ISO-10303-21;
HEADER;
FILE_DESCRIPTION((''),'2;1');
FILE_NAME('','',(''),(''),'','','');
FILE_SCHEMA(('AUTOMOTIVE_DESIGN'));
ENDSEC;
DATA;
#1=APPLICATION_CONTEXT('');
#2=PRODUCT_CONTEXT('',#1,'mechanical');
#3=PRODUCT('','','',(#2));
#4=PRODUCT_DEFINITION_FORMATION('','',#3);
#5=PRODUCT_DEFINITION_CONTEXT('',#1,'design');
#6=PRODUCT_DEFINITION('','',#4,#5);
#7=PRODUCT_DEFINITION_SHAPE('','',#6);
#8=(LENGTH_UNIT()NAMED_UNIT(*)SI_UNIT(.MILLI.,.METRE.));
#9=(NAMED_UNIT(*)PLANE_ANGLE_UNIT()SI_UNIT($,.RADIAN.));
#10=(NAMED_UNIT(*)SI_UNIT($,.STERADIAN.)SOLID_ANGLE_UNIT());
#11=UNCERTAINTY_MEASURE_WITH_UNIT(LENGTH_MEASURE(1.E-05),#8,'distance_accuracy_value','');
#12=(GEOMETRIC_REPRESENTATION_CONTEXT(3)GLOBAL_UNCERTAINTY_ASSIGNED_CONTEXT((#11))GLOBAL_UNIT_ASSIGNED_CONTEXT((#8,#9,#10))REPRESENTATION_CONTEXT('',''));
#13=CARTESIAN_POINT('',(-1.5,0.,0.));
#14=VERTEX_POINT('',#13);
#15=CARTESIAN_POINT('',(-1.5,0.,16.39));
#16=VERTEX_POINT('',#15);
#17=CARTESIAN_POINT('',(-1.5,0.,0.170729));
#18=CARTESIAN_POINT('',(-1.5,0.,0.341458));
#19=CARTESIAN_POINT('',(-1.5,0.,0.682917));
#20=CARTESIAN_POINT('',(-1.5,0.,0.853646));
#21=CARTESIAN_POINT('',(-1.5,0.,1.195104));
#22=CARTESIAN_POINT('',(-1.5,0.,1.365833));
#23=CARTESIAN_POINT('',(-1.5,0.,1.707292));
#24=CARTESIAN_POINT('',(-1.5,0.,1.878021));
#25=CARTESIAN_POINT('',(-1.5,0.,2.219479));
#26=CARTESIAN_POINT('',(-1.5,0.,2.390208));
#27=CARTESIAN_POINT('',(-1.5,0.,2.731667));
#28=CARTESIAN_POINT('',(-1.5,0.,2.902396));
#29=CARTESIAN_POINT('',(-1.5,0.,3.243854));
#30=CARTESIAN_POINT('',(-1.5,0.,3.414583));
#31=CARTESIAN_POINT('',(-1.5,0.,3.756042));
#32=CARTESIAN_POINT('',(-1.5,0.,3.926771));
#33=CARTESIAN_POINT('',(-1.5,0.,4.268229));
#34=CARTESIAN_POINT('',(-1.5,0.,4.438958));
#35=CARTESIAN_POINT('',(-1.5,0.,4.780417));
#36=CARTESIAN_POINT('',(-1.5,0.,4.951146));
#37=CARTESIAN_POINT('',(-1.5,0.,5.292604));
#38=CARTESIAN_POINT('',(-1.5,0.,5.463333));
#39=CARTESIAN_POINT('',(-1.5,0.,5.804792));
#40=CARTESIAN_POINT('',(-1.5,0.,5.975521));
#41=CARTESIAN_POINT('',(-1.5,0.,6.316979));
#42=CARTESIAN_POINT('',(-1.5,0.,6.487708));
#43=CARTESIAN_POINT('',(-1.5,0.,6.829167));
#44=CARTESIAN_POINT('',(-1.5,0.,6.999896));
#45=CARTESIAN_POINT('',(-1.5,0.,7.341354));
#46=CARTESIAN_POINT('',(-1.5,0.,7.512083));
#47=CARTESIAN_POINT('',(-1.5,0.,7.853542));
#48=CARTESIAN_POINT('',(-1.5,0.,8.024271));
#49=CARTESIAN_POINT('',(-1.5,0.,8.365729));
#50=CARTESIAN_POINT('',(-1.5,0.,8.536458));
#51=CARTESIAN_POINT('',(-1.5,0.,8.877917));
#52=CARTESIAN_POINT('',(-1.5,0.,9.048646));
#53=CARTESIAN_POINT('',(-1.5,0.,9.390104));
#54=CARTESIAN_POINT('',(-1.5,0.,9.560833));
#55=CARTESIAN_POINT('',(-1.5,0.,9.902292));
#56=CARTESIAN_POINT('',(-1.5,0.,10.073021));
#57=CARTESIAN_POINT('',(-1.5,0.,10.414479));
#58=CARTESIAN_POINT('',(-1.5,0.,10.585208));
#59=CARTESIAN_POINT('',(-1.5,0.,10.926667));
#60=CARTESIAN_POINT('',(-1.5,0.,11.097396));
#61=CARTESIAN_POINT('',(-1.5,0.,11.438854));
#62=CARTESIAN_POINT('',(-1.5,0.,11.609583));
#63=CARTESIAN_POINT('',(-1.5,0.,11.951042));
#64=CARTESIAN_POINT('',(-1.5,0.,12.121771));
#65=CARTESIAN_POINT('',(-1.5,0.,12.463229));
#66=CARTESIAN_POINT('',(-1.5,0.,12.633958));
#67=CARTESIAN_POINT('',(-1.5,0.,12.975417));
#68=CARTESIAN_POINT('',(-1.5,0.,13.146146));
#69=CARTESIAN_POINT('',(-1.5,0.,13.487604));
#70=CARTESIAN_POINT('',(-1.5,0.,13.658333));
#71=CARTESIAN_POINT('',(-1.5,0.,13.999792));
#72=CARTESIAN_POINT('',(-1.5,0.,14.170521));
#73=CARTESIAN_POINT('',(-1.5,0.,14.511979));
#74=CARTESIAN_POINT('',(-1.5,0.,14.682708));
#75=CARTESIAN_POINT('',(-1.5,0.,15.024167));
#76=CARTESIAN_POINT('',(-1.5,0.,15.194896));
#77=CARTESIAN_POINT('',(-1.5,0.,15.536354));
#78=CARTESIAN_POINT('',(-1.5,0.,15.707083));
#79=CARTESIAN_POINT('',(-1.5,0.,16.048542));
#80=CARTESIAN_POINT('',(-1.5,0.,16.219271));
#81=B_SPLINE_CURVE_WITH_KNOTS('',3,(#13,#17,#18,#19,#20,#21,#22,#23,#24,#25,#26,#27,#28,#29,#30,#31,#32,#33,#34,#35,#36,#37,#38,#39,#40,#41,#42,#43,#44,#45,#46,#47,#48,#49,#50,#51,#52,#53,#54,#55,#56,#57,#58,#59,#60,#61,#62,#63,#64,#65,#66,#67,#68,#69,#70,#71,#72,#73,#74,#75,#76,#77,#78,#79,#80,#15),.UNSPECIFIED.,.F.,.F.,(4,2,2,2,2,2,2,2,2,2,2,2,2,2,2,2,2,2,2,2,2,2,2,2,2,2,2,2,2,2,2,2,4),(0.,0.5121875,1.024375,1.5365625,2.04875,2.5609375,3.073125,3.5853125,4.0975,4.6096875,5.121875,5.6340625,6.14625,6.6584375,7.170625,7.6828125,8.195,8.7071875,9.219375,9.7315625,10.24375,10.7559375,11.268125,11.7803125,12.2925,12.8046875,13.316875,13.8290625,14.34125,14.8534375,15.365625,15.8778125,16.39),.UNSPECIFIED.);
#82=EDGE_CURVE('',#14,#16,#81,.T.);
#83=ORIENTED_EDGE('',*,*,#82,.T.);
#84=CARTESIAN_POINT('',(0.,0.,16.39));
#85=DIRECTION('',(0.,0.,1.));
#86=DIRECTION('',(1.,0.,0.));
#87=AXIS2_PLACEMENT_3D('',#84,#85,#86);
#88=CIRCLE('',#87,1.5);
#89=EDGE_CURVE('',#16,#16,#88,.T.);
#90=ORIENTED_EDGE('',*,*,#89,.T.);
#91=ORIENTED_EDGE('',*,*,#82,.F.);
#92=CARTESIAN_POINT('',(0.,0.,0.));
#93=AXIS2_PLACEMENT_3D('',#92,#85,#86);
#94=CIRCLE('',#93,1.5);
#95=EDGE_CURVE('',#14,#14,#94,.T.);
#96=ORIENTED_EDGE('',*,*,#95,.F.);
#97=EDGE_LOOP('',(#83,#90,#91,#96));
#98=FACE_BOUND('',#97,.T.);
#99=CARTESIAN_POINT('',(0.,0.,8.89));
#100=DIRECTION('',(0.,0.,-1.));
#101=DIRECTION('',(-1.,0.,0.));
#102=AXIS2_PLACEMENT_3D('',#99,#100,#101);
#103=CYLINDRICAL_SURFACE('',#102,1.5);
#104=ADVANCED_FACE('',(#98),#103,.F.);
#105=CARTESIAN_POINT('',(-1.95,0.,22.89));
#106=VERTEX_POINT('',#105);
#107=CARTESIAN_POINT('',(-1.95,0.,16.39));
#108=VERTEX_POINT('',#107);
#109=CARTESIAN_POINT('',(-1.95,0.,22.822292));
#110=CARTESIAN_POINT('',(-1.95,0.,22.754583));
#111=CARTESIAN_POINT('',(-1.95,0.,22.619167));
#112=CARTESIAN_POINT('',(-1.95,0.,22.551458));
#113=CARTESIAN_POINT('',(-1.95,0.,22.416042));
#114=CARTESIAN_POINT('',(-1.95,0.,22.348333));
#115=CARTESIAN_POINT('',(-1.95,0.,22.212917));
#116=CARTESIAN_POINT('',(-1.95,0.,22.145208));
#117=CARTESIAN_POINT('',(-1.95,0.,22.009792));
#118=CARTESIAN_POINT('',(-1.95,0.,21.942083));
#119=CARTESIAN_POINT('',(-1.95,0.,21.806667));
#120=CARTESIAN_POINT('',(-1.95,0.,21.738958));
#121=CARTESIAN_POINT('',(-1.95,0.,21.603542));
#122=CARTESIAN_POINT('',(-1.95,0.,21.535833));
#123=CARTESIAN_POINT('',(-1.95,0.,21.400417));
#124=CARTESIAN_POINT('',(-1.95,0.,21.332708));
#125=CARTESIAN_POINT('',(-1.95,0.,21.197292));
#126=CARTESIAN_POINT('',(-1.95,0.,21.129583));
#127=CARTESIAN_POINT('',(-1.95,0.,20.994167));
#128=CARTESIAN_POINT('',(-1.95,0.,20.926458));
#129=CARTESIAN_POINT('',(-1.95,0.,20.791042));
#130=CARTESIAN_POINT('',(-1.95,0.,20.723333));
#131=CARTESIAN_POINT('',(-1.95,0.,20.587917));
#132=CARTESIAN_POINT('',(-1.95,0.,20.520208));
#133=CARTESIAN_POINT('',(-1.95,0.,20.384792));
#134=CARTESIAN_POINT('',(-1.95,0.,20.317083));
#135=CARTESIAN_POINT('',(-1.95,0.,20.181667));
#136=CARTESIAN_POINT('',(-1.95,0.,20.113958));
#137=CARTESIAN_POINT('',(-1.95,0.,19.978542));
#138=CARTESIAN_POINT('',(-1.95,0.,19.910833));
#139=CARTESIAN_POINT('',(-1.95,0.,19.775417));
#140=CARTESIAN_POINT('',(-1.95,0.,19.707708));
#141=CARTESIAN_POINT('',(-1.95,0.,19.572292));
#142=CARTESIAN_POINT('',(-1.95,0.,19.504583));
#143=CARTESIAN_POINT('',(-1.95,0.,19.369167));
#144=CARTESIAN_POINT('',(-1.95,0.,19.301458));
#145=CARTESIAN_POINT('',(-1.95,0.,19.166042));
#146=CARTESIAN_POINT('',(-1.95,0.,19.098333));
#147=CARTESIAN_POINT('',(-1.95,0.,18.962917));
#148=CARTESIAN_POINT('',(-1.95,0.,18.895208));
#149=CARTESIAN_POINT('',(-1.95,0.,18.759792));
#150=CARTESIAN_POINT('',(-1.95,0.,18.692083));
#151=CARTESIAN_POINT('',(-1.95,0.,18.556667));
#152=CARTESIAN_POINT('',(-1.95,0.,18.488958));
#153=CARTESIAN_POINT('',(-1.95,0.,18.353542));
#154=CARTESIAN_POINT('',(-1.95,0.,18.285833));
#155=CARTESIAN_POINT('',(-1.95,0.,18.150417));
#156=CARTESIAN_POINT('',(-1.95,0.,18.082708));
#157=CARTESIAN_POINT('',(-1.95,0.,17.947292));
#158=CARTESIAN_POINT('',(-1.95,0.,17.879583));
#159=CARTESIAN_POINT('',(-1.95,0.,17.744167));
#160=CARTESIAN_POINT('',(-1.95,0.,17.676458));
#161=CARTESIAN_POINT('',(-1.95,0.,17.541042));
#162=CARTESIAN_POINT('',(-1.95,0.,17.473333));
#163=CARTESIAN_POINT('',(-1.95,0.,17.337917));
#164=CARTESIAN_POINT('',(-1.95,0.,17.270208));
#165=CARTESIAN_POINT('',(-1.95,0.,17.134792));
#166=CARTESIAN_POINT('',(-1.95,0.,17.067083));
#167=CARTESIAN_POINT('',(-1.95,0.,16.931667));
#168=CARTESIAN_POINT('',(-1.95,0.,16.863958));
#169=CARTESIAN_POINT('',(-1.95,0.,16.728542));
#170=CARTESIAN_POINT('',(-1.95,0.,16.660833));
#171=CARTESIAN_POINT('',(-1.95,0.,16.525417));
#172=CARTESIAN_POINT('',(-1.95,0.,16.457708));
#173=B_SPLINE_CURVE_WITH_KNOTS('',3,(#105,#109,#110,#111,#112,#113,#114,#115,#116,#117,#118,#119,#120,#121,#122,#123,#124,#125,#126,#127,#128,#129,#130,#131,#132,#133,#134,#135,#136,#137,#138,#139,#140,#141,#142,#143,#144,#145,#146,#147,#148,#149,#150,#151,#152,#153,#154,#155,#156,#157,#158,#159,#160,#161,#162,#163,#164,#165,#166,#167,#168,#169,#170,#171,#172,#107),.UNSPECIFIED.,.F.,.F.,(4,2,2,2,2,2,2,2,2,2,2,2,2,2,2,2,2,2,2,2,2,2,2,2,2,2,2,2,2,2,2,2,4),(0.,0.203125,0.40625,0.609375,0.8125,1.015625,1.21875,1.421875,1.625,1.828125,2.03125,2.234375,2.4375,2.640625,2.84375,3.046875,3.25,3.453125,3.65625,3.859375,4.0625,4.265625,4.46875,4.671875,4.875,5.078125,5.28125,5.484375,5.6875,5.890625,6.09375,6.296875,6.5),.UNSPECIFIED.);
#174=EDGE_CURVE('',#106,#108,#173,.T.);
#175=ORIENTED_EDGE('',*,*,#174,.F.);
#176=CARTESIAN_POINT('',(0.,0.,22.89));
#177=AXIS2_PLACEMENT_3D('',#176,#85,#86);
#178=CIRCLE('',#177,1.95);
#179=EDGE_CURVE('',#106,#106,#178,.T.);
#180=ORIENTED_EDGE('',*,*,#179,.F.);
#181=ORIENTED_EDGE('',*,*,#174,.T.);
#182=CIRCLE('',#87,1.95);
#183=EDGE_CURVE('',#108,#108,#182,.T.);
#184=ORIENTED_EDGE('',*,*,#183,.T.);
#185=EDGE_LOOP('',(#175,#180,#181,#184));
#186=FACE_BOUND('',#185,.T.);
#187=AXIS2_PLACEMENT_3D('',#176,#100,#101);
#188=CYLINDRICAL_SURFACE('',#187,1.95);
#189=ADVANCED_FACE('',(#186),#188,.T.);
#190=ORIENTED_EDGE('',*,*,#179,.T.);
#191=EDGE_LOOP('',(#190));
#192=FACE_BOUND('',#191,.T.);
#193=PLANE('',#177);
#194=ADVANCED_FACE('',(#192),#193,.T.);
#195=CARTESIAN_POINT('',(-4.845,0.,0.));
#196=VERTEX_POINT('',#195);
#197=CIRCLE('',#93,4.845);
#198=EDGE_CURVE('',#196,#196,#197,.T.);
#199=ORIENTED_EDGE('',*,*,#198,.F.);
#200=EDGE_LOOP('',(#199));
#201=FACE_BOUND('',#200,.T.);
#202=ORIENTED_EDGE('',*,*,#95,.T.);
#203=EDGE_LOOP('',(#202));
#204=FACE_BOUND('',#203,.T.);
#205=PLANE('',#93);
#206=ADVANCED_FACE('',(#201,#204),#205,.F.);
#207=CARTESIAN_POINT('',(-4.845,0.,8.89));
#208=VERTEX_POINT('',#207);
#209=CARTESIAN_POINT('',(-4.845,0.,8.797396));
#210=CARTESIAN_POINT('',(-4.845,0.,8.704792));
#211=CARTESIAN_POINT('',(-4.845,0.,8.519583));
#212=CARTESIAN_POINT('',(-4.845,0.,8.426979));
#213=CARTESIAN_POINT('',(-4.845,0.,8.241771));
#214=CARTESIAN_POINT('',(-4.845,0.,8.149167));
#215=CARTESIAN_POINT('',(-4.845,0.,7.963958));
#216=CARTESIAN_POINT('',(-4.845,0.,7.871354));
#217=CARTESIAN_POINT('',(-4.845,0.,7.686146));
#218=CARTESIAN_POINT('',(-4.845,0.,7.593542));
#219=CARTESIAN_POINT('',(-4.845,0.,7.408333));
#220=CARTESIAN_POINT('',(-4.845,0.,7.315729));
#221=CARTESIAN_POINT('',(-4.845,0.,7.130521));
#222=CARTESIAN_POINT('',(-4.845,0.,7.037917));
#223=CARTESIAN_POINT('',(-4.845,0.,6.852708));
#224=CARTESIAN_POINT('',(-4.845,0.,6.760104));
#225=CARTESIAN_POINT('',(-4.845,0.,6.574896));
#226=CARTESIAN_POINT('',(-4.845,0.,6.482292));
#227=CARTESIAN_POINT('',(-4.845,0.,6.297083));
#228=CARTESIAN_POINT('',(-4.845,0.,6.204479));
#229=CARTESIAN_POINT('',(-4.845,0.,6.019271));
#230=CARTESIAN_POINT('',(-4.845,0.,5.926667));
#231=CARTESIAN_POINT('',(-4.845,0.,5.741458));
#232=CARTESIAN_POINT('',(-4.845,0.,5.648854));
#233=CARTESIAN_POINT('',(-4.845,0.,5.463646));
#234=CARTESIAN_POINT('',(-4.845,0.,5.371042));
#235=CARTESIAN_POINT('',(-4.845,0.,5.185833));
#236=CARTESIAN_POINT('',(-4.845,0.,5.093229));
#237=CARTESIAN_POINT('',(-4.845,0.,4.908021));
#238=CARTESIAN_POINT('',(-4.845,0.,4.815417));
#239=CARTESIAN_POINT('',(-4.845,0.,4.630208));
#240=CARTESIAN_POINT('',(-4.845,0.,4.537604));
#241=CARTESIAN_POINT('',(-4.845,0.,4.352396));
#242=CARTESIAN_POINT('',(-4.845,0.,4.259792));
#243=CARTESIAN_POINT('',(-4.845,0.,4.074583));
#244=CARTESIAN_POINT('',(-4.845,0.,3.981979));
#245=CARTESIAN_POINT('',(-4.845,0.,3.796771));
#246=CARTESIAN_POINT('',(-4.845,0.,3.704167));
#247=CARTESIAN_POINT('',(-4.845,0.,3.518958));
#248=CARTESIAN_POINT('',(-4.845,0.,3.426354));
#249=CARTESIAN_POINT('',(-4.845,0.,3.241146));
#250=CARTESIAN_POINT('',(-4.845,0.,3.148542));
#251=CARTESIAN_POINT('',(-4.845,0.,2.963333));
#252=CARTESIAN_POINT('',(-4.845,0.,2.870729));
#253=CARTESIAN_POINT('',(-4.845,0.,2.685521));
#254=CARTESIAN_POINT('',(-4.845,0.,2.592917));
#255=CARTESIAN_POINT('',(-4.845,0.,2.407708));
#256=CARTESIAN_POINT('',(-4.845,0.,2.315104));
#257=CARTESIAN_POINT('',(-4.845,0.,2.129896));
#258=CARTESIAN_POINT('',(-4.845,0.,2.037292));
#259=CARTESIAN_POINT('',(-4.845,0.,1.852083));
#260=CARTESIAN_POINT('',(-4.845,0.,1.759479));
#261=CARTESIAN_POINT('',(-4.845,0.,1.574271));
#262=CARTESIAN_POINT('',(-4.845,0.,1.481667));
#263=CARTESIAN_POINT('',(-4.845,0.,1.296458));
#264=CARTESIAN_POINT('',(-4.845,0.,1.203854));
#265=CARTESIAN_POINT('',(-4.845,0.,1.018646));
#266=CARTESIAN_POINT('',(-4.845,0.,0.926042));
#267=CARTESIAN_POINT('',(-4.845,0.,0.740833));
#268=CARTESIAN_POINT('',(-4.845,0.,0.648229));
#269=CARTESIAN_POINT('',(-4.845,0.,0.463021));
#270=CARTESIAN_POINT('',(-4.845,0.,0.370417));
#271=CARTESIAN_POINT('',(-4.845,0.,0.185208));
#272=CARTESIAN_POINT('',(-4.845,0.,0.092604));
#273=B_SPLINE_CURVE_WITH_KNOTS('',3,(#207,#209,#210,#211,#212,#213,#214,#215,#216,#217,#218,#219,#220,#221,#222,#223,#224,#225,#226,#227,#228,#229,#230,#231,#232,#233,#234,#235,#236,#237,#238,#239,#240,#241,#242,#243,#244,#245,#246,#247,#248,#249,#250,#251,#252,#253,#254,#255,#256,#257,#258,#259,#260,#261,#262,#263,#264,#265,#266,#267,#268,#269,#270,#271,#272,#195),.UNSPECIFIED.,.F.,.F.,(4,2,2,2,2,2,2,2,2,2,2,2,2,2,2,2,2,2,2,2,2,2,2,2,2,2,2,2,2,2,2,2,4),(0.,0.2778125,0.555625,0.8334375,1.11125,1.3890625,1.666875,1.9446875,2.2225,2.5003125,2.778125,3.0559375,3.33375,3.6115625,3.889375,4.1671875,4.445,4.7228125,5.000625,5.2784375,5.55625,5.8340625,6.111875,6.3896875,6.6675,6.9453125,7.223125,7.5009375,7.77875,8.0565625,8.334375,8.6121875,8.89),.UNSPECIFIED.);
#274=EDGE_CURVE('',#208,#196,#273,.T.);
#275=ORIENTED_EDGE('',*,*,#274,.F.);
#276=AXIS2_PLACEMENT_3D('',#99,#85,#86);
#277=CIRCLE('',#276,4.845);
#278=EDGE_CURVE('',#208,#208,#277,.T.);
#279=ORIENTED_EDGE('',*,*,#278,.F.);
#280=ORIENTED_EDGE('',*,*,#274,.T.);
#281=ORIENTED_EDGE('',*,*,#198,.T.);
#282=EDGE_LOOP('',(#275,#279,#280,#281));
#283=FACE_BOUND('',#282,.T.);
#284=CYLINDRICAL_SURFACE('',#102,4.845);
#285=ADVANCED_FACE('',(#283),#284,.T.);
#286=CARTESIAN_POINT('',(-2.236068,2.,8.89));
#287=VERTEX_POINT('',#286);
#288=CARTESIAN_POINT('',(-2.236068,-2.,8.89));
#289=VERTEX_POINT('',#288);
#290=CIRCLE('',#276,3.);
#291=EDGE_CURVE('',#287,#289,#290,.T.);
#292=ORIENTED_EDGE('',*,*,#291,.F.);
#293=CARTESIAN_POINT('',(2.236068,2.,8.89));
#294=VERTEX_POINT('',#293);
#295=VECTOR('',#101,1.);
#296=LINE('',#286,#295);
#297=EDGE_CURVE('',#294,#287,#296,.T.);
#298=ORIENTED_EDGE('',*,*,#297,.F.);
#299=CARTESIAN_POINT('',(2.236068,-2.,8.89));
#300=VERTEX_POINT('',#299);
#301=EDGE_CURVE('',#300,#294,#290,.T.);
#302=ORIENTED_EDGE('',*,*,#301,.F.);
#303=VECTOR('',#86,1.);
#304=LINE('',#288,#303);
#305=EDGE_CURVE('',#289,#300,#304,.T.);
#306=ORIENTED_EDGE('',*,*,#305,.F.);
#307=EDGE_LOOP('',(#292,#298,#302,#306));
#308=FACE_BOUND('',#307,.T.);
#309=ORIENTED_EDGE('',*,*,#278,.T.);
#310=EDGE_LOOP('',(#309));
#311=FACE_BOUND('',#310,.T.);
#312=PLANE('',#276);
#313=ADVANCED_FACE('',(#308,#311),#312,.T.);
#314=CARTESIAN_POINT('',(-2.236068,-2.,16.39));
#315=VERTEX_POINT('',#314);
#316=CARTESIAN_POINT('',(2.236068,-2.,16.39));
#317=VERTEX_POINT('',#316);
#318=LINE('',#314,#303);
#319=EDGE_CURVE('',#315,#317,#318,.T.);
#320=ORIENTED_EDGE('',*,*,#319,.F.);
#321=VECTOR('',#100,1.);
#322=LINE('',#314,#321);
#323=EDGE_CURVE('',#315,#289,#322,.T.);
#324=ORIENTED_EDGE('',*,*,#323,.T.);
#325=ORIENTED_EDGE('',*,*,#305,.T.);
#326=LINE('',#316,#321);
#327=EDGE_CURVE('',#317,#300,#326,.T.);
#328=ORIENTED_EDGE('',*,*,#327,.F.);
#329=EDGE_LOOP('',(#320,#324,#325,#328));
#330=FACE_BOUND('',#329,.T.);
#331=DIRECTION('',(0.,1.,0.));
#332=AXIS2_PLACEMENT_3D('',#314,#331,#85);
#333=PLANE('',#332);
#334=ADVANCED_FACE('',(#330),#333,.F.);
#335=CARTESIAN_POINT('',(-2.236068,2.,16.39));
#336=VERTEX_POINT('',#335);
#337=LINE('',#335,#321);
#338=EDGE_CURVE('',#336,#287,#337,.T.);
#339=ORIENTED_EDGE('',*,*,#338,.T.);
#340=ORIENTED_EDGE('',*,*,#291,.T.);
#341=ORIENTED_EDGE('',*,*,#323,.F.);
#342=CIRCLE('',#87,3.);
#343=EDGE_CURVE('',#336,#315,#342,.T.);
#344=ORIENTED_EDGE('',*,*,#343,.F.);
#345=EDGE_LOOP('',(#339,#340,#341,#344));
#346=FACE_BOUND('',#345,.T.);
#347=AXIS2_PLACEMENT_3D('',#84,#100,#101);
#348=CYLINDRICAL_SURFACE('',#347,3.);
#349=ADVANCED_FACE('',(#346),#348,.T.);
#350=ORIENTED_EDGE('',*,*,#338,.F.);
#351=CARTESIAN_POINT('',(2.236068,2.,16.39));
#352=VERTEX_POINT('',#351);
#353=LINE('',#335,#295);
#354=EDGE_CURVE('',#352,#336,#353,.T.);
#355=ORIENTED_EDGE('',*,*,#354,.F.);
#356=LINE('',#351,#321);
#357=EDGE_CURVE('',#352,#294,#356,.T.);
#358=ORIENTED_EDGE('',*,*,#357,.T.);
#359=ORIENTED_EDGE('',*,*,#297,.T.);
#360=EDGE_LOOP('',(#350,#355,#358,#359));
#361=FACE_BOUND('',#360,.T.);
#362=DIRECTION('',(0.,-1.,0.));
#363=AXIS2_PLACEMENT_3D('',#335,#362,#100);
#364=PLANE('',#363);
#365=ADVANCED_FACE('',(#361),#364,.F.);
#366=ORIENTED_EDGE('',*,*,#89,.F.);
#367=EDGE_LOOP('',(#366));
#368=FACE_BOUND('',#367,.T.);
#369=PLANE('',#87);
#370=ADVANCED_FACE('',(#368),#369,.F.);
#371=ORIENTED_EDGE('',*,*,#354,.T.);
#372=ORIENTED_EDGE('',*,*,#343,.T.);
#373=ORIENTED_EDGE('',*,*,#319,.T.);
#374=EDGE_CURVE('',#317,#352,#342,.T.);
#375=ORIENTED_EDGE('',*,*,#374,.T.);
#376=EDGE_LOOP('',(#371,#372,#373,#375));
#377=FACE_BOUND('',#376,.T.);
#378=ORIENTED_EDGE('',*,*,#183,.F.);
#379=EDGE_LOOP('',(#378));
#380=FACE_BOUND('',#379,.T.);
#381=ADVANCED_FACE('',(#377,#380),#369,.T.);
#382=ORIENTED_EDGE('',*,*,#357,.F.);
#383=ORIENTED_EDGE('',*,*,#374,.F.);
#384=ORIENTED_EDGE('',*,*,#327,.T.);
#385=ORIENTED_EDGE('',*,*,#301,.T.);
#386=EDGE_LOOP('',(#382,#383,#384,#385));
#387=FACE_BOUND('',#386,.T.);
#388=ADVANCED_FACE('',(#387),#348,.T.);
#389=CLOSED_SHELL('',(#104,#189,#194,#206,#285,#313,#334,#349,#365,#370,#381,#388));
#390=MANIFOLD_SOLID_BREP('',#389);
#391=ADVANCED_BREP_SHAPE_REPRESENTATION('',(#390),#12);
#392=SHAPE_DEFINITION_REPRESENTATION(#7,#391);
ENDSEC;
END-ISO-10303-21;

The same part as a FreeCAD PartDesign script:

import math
import FreeCAD as App
import Part
import Sketcher

doc = App.newDocument("Part")
body = doc.addObject("PartDesign::Body", "Body")

# Sketch on XY plane
sketch1 = body.newObject("Sketcher::SketchObject", "Sketch")
sketch1.AttachmentSupport = (doc.getObject("XY_Plane"), [""])
sketch1.MapMode = "FlatFace"
sketch1.addGeometry([
    Part.Circle(App.Vector(0, 0, 0), App.Vector(0, 0, 1), 4.8),
    Part.Circle(App.Vector(0, 0, 0), App.Vector(0, 0, 1), 1.5),
], False)
sketch1.addConstraint([
    Sketcher.Constraint("Coincident", 0, 3, -1, 1),
    Sketcher.Constraint("Coincident", 1, 3, -1, 1),
    Sketcher.Constraint("Diameter", 1, 3.0),
    Sketcher.Constraint("Diameter", 0, 9.69),
])
pad1 = body.newObject("PartDesign::Pad", "Pad")
pad1.Profile = sketch1
pad1.Length = 8.89

# Sketch on XY plane
sketch2 = body.newObject("Sketcher::SketchObject", "Sketch001")
sketch2.AttachmentSupport = (doc.getObject("XY_Plane"), [""])
sketch2.MapMode = "FlatFace"
sketch2.AttachmentOffset = App.Placement(App.Vector(0, 0, 8.89), App.Rotation())
sketch2.addGeometry([
    Part.LineSegment(App.Vector(2.2, 2, 0), App.Vector(-2.2, 2, 0)),  # 0
    Part.ArcOfCircle(Part.Circle(App.Vector(0, 0, 0), App.Vector(0, 0, 1), 3), math.radians(138), math.radians(222)),  # 1
    Part.LineSegment(App.Vector(-2.2, -2, 0), App.Vector(2.2, -2, 0)),  # 2
    Part.ArcOfCircle(Part.Circle(App.Vector(0, 0, 0), App.Vector(0, 0, 1), 3), math.radians(-42), math.radians(42)),  # 3
    Part.Circle(App.Vector(0, 0, 0), App.Vector(0, 0, 1), 1.5),  # 4
], False)
sketch2.addConstraint([
    Sketcher.Constraint("Coincident", 0, 2, 1, 1),
    Sketcher.Constraint("Coincident", 1, 2, 2, 1),
    Sketcher.Constraint("Coincident", 2, 2, 3, 1),
    Sketcher.Constraint("Coincident", 3, 2, 0, 1),
    Sketcher.Constraint("Horizontal", 0),
    Sketcher.Constraint("Horizontal", 2),
    Sketcher.Constraint("Coincident", 1, 3, -1, 1),
    Sketcher.Constraint("Coincident", 3, 3, -1, 1),
    Sketcher.Constraint("Coincident", 4, 3, -1, 1),
    Sketcher.Constraint("Equal", 1, 3),
    Sketcher.Constraint("Vertical", 0, 2, 1, 2),
    Sketcher.Constraint("Diameter", 4, 3.0),
    Sketcher.Constraint("Radius", 1, 3.0),
    Sketcher.Constraint("DistanceY", -1, 1, 0, 2, 2.0),
])
pad2 = body.newObject("PartDesign::Pad", "Pad001")
pad2.Profile = sketch2
pad2.Length = 7.5

# Sketch on XY plane
sketch3 = body.newObject("Sketcher::SketchObject", "Sketch002")
sketch3.AttachmentSupport = (doc.getObject("XY_Plane"), [""])
sketch3.MapMode = "FlatFace"
sketch3.AttachmentOffset = App.Placement(App.Vector(0, 0, 16.39), App.Rotation())
sketch3.addGeometry(Part.Circle(App.Vector(0, 0, 0), App.Vector(0, 0, 1), 1.9), False)
sketch3.addConstraint([
    Sketcher.Constraint("Coincident", 0, 3, -1, 1),
    Sketcher.Constraint("Diameter", 0, 3.9),
])
pad3 = body.newObject("PartDesign::Pad", "Pad002")
pad3.Profile = sketch3
pad3.Length = 6.5

doc.recompute()
